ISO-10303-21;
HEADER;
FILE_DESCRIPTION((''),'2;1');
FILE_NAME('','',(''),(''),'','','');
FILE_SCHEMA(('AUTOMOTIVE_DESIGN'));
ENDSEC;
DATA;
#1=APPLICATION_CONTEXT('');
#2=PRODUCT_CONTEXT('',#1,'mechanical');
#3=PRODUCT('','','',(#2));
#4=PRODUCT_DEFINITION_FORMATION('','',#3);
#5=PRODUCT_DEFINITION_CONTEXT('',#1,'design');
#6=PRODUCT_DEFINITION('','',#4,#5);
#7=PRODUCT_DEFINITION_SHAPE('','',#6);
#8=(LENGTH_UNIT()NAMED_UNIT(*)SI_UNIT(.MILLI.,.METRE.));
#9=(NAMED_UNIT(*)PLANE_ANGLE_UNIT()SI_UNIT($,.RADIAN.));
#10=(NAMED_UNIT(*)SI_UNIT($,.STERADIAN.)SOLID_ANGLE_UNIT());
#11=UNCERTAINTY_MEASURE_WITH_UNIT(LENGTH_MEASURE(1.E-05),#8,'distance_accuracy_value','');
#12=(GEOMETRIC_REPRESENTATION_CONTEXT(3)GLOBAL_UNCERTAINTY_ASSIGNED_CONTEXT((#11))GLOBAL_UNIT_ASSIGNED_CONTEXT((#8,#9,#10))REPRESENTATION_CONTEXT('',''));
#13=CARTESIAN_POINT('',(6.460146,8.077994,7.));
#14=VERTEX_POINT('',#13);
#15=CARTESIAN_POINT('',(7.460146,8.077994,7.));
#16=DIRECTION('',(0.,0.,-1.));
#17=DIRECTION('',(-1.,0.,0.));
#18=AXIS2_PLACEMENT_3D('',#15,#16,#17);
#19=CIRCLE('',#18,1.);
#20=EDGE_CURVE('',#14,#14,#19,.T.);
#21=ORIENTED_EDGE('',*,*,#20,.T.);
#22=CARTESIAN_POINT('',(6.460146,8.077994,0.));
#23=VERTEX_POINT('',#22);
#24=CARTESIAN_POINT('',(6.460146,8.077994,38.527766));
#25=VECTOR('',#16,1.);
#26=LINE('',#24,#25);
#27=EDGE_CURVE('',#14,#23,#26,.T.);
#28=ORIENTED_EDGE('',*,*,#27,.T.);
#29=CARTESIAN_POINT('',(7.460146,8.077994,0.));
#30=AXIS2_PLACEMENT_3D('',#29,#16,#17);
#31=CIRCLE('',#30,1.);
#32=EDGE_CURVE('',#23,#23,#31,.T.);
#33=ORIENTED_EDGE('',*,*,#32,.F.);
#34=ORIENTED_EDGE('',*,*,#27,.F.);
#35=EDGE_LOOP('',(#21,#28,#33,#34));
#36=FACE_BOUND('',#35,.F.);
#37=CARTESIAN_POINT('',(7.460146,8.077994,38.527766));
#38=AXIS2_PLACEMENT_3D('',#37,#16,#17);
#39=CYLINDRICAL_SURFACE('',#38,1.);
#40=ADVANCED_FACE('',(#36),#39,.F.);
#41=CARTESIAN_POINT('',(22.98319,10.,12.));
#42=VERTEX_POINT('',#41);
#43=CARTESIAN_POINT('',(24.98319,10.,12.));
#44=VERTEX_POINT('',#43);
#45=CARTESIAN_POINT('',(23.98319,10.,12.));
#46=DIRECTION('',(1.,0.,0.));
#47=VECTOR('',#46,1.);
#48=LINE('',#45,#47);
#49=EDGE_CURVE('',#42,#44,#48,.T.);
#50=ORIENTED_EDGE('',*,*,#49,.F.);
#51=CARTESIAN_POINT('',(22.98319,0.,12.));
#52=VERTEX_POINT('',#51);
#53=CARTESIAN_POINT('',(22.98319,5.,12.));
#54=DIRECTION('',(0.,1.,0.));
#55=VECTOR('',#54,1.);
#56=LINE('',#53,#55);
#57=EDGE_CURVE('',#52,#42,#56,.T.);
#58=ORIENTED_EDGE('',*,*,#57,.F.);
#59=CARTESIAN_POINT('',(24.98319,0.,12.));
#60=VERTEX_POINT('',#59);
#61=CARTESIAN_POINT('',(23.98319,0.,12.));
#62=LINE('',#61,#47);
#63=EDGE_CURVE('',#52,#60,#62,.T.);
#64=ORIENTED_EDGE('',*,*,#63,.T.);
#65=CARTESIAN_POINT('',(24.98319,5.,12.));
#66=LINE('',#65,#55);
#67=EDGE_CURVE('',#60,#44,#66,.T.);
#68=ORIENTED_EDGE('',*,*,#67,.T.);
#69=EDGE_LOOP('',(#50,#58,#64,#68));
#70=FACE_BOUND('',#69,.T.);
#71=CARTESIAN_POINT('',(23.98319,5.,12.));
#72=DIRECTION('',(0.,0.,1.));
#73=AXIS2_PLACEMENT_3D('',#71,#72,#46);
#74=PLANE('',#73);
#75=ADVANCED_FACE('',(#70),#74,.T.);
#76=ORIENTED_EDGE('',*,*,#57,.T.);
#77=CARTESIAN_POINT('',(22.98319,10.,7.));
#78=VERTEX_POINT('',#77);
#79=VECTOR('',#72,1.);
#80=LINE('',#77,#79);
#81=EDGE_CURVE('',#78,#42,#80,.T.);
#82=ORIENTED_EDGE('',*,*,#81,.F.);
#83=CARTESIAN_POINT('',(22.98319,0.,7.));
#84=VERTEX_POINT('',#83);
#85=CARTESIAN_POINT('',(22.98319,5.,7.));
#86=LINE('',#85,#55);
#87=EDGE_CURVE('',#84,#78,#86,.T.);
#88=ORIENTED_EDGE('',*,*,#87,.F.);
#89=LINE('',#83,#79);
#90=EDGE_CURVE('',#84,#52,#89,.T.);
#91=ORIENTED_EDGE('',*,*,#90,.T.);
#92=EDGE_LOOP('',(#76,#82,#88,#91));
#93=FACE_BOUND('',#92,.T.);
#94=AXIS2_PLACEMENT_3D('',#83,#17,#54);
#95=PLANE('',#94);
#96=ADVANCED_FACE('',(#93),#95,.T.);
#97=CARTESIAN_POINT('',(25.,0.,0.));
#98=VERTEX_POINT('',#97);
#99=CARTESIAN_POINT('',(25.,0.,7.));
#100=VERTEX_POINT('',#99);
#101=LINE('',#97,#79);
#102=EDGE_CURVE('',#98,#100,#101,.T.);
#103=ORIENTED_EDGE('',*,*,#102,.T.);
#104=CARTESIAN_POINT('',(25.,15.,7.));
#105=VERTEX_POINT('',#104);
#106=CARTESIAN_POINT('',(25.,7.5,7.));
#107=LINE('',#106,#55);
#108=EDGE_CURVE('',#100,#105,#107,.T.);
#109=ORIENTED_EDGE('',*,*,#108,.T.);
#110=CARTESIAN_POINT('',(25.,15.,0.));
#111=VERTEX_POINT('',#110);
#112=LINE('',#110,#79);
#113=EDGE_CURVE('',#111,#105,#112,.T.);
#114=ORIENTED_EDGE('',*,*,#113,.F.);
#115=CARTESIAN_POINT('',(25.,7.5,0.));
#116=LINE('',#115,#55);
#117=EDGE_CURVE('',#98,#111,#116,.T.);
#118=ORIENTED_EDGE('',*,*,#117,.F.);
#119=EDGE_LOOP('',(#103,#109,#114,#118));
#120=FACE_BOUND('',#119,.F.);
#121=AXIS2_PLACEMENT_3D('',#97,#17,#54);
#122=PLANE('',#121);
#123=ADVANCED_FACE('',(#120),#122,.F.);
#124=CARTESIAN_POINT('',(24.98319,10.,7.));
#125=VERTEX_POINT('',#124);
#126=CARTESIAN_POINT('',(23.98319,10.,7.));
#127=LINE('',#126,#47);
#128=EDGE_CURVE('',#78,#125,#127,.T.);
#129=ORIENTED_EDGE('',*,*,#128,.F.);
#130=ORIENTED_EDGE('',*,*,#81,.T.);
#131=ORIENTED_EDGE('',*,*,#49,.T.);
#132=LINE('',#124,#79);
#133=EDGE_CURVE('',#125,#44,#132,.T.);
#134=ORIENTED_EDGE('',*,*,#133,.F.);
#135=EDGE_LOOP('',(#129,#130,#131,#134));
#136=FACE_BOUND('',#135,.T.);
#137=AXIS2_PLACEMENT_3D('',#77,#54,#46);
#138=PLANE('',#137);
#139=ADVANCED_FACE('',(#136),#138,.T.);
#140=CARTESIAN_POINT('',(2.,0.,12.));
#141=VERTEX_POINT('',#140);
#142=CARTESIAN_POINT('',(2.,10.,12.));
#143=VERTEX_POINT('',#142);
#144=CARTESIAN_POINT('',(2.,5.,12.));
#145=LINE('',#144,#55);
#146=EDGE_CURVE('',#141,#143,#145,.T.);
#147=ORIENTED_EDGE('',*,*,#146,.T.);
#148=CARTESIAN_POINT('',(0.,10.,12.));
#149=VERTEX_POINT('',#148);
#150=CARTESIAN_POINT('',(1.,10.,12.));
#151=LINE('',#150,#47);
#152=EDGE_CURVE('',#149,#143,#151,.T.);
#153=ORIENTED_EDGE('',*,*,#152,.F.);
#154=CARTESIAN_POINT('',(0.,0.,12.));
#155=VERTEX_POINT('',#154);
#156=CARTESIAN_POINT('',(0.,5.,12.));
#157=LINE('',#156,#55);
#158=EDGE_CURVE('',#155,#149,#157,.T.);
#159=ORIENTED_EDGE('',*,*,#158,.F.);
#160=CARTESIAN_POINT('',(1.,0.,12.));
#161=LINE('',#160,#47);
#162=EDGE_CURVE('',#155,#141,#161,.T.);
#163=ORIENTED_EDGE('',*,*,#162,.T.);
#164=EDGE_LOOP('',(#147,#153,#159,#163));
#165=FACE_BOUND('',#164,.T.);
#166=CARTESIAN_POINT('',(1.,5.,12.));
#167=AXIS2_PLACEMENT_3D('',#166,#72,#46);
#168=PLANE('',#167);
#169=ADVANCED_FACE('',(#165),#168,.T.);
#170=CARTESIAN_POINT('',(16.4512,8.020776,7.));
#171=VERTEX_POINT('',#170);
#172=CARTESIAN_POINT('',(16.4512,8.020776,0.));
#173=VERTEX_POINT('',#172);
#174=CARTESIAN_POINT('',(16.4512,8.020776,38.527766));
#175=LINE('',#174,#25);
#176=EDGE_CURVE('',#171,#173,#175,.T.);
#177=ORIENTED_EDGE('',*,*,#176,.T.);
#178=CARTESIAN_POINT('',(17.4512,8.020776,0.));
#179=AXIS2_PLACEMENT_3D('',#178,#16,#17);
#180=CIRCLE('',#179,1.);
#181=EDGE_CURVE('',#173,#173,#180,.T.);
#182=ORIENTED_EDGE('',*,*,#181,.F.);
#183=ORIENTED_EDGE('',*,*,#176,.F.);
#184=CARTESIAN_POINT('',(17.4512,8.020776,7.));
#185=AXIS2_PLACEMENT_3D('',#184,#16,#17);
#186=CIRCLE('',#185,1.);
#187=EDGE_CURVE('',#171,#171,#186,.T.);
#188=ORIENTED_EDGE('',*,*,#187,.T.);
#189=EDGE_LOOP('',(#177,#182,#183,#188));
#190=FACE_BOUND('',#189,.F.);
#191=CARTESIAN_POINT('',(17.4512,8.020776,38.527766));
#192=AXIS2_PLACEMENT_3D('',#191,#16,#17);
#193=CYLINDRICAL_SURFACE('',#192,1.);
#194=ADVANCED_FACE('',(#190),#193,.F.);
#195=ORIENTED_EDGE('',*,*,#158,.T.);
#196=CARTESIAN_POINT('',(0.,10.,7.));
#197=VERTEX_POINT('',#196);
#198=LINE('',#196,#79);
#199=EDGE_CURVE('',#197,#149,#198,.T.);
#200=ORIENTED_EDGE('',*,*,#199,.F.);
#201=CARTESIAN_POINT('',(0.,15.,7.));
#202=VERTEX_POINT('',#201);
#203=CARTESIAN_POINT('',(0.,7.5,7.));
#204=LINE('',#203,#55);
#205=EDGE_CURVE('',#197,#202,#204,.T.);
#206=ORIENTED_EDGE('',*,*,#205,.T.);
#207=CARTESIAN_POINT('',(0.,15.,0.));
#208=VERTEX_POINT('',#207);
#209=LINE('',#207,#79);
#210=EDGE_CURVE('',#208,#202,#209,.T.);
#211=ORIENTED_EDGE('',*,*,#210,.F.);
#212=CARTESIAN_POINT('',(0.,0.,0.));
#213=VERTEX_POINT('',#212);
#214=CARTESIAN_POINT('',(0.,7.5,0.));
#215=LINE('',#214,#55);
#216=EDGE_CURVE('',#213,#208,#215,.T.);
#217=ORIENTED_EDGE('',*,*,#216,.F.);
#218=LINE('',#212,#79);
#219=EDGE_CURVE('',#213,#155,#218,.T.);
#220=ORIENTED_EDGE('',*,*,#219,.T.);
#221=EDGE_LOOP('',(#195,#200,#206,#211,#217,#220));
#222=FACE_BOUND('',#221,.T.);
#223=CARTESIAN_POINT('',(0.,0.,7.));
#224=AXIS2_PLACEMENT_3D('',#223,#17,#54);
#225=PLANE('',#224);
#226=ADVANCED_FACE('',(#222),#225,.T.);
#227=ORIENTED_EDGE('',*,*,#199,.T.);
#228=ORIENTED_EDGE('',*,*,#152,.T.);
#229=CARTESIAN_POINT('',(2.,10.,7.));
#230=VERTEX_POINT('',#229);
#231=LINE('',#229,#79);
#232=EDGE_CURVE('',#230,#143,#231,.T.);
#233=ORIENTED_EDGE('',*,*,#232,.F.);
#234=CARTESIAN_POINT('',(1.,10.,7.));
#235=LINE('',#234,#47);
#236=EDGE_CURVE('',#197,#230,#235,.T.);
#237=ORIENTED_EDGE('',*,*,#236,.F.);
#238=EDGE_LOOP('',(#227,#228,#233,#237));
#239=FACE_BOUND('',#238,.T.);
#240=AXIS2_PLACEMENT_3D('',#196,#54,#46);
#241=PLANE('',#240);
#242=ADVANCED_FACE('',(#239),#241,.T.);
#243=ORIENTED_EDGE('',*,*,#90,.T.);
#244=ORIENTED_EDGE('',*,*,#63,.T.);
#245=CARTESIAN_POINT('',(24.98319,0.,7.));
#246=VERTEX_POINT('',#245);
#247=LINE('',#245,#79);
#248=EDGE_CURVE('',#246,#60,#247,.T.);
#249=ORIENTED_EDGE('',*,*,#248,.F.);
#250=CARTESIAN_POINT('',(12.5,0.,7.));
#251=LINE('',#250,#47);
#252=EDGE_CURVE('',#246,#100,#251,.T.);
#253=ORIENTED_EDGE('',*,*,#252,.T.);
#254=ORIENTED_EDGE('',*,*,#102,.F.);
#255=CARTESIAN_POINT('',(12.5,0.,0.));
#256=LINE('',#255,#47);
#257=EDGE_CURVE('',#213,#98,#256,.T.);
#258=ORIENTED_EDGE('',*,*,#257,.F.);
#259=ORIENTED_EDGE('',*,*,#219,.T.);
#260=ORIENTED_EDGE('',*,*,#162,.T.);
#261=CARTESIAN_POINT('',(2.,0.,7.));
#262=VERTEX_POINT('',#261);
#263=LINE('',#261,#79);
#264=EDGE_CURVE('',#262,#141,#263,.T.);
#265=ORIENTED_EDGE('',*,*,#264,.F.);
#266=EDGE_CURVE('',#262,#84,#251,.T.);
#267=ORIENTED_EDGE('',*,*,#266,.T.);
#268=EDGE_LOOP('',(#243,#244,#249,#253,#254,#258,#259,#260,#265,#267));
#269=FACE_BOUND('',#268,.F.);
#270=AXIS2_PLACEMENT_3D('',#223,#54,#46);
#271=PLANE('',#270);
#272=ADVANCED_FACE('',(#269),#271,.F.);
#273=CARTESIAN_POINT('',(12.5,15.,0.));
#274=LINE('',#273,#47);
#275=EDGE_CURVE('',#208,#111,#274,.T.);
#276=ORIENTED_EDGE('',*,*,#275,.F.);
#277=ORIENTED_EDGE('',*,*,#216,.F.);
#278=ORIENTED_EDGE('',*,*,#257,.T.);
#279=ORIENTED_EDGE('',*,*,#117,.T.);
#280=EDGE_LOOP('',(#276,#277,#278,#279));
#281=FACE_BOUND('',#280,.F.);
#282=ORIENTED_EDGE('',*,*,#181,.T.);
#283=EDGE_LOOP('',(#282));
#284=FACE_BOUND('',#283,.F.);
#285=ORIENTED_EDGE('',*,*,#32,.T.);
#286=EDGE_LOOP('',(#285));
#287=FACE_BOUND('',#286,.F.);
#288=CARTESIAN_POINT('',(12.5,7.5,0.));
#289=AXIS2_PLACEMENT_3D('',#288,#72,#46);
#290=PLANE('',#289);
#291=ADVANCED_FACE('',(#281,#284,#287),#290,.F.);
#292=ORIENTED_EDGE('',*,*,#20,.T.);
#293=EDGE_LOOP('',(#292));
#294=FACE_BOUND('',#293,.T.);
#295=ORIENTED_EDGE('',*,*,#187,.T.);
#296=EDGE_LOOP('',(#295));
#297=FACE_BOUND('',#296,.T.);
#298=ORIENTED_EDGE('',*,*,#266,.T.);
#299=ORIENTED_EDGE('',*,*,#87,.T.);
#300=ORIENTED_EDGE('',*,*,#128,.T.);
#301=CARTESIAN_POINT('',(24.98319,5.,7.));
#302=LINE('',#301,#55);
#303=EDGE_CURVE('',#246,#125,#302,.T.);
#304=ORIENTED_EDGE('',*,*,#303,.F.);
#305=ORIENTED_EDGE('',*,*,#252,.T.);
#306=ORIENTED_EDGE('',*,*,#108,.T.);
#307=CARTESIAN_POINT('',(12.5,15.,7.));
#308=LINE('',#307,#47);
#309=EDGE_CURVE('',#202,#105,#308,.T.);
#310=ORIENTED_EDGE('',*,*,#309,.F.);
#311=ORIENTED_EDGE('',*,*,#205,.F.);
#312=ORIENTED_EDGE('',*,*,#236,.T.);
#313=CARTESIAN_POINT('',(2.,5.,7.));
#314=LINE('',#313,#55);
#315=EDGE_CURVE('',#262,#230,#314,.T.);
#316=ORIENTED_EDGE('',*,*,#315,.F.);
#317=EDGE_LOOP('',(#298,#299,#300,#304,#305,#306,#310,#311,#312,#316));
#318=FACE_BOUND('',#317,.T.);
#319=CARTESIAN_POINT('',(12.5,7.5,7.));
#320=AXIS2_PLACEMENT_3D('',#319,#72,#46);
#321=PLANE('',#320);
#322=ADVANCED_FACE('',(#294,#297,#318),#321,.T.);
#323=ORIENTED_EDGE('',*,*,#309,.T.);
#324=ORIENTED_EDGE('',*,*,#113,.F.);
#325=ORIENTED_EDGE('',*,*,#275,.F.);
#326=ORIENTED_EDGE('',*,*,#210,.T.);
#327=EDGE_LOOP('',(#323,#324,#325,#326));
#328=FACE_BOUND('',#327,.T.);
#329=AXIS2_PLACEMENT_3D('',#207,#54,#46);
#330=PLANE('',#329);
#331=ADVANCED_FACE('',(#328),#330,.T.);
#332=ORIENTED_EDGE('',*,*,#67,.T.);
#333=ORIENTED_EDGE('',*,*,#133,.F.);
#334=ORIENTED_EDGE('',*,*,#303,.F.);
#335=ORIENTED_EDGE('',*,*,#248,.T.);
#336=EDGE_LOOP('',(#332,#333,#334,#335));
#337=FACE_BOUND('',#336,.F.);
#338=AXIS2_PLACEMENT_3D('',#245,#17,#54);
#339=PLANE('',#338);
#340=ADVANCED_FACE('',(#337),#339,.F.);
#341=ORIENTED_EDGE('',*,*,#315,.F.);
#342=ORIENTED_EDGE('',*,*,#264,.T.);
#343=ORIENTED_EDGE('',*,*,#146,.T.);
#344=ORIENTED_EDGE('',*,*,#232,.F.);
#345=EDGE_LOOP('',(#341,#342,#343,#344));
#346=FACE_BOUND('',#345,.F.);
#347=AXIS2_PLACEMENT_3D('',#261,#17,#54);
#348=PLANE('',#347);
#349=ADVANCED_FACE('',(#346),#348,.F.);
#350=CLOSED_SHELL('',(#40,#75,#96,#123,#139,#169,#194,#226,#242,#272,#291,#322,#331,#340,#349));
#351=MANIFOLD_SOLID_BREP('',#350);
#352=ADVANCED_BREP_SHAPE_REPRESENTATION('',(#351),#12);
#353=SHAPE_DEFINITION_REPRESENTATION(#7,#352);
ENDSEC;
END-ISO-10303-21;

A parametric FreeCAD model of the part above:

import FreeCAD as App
import Part
import Sketcher
from FreeCAD import Vector

doc = App.newDocument("Part")
body = doc.addObject("PartDesign::Body", "Body")

sketch1 = body.newObject("Sketcher::SketchObject", "Sketch")
sketch1.AttachmentSupport = (doc.getObject("XY_Plane"), [""])
sketch1.MapMode = "FlatFace"
sketch1.addGeometry([
    Part.LineSegment(Vector(0, 15, 0), Vector(0, 0, 0)),
    Part.LineSegment(Vector(0, 0, 0), Vector(25, 0, 0)),
    Part.LineSegment(Vector(25, 0, 0), Vector(25, 15, 0)),
    Part.LineSegment(Vector(25, 15, 0), Vector(0, 15, 0)),
], False)
sketch1.addConstraint([
    Sketcher.Constraint("Coincident", 0, 2, 1, 1),
    Sketcher.Constraint("Coincident", 1, 2, 2, 1),
    Sketcher.Constraint("Coincident", 2, 2, 3, 1),
    Sketcher.Constraint("Coincident", 3, 2, 0, 1),
    Sketcher.Constraint("Vertical", 0),
    Sketcher.Constraint("Horizontal", 1),
    Sketcher.Constraint("Vertical", 2),
    Sketcher.Constraint("Horizontal", 3),
    Sketcher.Constraint("Coincident", 0, 2, -1, 1),
    Sketcher.Constraint("DistanceX", 1, 1, 1, 2, 25.0),
    Sketcher.Constraint("DistanceY", 0, 2, 0, 1, 15.0),
])
pad1 = body.newObject("PartDesign::Pad", "Pad")
pad1.Profile = sketch1
pad1.Length = 7

sketch2 = body.newObject("Sketcher::SketchObject", "Sketch001")
sketch2.AttachmentSupport = (doc.getObject("XY_Plane"), [""])
sketch2.MapMode = "FlatFace"
sketch2.AttachmentOffset = App.Placement(Vector(0, 0, 7), App.Rotation())
sketch2.addGeometry([
    Part.LineSegment(Vector(0, 10, 0), Vector(0, 0, 0)),
    Part.LineSegment(Vector(0, 0, 0), Vector(2, 0, 0)),
    Part.LineSegment(Vector(2, 0, 0), Vector(2, 10, 0)),
    Part.LineSegment(Vector(2, 10, 0), Vector(0, 10, 0)),
], False)
sketch2.addConstraint([
    Sketcher.Constraint("Coincident", 0, 2, 1, 1),
    Sketcher.Constraint("Coincident", 1, 2, 2, 1),
    Sketcher.Constraint("Coincident", 2, 2, 3, 1),
    Sketcher.Constraint("Coincident", 3, 2, 0, 1),
    Sketcher.Constraint("Vertical", 0),
    Sketcher.Constraint("Horizontal", 1),
    Sketcher.Constraint("Vertical", 2),
    Sketcher.Constraint("Horizontal", 3),
    Sketcher.Constraint("Coincident", 0, 2, -1, 1),
    Sketcher.Constraint("DistanceX", 1, 1, 1, 2, 2.0),
    Sketcher.Constraint("DistanceY", 0, 2, 0, 1, 10.0),
])
pad2 = body.newObject("PartDesign::Pad", "Pad001")
pad2.Profile = sketch2
pad2.Length = 5

sketch3 = body.newObject("Sketcher::SketchObject", "Sketch002")
sketch3.AttachmentSupport = (doc.getObject("XY_Plane"), [""])
sketch3.MapMode = "FlatFace"
sketch3.AttachmentOffset = App.Placement(Vector(0, 0, 7), App.Rotation())
sketch3.addGeometry([
    Part.LineSegment(Vector(23, 10, 0), Vector(23, 0, 0)),
    Part.LineSegment(Vector(23, 0, 0), Vector(25, 0, 0)),
    Part.LineSegment(Vector(25, 0, 0), Vector(25, 10, 0)),
    Part.LineSegment(Vector(25, 10, 0), Vector(23, 10, 0)),
], False)
sketch3.addConstraint([
    Sketcher.Constraint("Coincident", 0, 2, 1, 1),
    Sketcher.Constraint("Coincident", 1, 2, 2, 1),
    Sketcher.Constraint("Coincident", 2, 2, 3, 1),
    Sketcher.Constraint("Coincident", 3, 2, 0, 1),
    Sketcher.Constraint("Vertical", 0),
    Sketcher.Constraint("Horizontal", 1),
    Sketcher.Constraint("Vertical", 2),
    Sketcher.Constraint("Horizontal", 3),
    Sketcher.Constraint("PointOnObject", 0, 2, -1),
    Sketcher.Constraint("DistanceX", 1, 1, 1, 2, 2.0),
    Sketcher.Constraint("DistanceY", 0, 2, 0, 1, 10.0),
    Sketcher.Constraint("DistanceX", -1, 1, 0, 2, 22.98319),
])
pad3 = body.newObject("PartDesign::Pad", "Pad002")
pad3.Profile = sketch3
pad3.Length = 5

sketch4 = body.newObject("Sketcher::SketchObject", "Sketch003")
sketch4.AttachmentSupport = (doc.getObject("XY_Plane"), [""])
sketch4.MapMode = "FlatFace"
sketch4.AttachmentOffset = App.Placement(Vector(0, 0, 7), App.Rotation())
sketch4.addGeometry([
    Part.Circle(Vector(7.5, 8.1, 0), Vector(0, 0, 1), 1),
    Part.Circle(Vector(17.5, 8, 0), Vector(0, 0, 1), 1),
], False)
sketch4.addConstraint([
    Sketcher.Constraint("Equal", 0, 1),
    Sketcher.Constraint("Diameter", 0, 2.0),
    Sketcher.Constraint("DistanceX", -1, 1, 1, 3, 17.4512),
    Sketcher.Constraint("DistanceY", 1, 3, 0, 3, 0.057218),
    Sketcher.Constraint("DistanceX", -1, 1, 0, 3, 7.460146),
    Sketcher.Constraint("DistanceY", -1, 1, 0, 3, 8.077994),
])
doc.recompute()
hole = body.newObject("PartDesign::Hole", "Hole")
hole.Profile = sketch4
hole.ThreadType = "None"
hole.Diameter = 2
hole.DepthType = "ThroughAll"

doc.recompute()
